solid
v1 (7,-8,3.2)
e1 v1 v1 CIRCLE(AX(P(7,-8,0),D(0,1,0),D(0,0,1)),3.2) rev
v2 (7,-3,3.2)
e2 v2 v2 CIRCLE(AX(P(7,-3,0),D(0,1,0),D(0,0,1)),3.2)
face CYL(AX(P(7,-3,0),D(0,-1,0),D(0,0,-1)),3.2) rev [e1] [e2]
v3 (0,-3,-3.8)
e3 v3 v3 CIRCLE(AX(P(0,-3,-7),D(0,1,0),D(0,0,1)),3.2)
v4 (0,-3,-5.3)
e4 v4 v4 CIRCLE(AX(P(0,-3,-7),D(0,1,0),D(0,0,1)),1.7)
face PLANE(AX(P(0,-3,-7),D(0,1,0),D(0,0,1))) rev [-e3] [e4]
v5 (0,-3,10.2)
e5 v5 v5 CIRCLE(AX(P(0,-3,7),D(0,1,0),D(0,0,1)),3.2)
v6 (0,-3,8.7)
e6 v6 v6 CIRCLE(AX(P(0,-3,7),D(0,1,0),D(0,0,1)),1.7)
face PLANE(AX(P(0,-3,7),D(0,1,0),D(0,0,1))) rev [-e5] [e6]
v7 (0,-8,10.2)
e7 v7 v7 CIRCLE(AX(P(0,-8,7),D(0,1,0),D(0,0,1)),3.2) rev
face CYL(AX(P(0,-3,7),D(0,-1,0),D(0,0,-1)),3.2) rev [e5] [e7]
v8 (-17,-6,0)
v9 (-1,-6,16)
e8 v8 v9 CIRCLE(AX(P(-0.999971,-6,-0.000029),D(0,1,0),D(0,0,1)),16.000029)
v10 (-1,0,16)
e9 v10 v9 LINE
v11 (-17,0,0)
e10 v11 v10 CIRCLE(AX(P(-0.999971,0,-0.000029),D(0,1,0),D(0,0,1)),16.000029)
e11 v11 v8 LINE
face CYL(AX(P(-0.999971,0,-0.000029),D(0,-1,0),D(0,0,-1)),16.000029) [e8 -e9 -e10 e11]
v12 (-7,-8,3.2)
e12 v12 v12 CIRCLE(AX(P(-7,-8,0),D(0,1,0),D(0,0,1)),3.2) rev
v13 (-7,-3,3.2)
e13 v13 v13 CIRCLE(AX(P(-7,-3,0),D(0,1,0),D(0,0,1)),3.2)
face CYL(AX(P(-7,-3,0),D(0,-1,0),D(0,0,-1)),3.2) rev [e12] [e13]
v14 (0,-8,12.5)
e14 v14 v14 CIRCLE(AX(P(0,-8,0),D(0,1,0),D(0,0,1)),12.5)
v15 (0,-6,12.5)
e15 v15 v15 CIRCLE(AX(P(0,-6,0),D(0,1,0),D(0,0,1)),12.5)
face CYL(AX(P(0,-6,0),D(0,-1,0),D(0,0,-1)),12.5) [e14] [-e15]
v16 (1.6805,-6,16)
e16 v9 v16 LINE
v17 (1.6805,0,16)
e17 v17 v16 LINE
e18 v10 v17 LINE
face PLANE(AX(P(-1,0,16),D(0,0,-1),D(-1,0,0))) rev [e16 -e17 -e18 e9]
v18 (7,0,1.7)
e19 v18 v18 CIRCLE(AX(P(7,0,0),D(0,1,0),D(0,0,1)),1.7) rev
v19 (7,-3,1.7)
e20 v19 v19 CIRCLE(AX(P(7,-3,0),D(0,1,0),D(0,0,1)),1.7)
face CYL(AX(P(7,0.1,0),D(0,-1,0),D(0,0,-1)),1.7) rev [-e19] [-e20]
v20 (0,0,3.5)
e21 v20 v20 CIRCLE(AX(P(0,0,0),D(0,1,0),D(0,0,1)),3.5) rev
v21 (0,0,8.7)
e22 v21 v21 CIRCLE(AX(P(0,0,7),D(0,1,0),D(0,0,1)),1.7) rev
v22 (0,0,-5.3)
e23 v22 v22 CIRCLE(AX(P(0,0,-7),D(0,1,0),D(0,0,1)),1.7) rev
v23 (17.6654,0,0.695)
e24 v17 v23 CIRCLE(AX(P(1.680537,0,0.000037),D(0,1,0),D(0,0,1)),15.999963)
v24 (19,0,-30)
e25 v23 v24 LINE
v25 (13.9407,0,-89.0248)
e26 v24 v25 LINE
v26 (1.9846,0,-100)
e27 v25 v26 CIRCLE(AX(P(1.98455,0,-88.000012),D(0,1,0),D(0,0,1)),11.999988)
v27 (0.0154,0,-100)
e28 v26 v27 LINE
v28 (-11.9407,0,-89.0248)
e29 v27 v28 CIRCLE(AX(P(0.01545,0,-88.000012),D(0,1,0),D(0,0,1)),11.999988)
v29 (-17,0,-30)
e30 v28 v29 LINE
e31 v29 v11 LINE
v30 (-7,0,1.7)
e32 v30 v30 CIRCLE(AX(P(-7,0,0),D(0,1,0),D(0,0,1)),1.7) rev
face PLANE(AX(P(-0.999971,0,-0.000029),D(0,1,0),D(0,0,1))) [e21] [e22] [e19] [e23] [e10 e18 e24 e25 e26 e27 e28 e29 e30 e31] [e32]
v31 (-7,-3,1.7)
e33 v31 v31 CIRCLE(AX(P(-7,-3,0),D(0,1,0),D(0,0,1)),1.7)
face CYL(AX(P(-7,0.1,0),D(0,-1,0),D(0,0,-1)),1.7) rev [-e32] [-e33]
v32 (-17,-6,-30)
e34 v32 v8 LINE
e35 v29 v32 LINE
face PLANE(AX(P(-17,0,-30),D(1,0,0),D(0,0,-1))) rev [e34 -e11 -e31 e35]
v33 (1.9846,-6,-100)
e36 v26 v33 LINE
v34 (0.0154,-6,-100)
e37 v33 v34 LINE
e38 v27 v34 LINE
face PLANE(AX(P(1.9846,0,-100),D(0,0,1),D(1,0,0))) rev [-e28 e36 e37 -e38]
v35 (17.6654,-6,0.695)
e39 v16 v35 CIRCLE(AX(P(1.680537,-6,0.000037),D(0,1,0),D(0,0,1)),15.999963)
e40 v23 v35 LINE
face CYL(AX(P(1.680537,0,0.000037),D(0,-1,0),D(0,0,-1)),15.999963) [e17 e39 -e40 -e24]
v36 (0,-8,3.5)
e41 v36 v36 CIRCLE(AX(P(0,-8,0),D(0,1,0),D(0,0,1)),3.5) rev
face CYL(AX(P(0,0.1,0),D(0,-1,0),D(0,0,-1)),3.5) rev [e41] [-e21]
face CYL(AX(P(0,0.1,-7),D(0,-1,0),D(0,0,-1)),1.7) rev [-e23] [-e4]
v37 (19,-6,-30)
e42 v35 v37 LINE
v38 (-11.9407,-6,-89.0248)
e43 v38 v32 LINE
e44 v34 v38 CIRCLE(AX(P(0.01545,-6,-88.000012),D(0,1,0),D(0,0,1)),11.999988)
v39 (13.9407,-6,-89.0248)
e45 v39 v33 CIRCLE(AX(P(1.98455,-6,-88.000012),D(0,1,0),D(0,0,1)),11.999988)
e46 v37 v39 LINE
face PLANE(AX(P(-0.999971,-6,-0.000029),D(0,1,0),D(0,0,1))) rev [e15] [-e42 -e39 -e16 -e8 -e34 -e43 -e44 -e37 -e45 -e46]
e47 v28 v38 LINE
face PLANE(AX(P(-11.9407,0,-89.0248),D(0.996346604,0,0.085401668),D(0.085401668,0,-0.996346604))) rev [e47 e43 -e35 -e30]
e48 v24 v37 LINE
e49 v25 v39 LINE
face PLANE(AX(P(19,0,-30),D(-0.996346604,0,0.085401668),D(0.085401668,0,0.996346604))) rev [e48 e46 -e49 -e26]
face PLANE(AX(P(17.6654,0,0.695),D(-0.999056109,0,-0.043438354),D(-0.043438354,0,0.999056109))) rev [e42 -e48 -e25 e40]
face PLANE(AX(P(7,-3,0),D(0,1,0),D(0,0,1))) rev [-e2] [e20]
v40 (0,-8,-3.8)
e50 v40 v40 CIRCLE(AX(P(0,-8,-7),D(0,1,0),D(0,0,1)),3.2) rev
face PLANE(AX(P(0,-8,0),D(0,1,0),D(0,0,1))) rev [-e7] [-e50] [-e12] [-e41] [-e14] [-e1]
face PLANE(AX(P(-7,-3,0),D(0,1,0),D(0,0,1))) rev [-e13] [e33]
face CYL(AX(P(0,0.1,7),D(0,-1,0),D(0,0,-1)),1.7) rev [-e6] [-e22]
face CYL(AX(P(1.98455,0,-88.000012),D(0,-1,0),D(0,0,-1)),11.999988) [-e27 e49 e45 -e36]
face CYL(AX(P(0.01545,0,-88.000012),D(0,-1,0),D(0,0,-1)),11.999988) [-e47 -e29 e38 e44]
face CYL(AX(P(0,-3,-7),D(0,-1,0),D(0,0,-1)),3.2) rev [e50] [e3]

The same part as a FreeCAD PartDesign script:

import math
import FreeCAD as App
import Part
import Sketcher
from FreeCAD import Vector

doc = App.newDocument("Part")
body = doc.addObject("PartDesign::Body", "Body")

# Sketch on XZ plane
sketch1 = body.newObject("Sketcher::SketchObject", "Sketch")
sketch1.AttachmentSupport = (doc.getObject("XZ_Plane"), [""])
sketch1.MapMode = "FlatFace"
sketch1.AttachmentOffset = App.Placement(Vector(0, 0, 6), App.Rotation())
sketch1.addGeometry(Part.LineSegment(Vector(-1, 16, 0), Vector(1.6805, 16, 0)), False)
sketch1.addGeometry(Part.ArcOfCircle(Part.Circle(Vector(1.680537, 0.000037, 0), Vector(0, 0, 1), 15.999963), math.radians(2.489442), math.radians(90.000132)), False)
sketch1.addGeometry(Part.LineSegment(Vector(17.6654, 0.695, 0), Vector(19, -30, 0)), False)
sketch1.addGeometry(Part.LineSegment(Vector(19, -30, 0), Vector(13.9407, -89.0248, 0)), False)
sketch1.addGeometry(Part.ArcOfCircle(Part.Circle(Vector(1.98455, -88.000012, 0), Vector(0, 0, 1), 11.999988), math.radians(-89.999762), math.radians(-4.898973)), False)
sketch1.addGeometry(Part.LineSegment(Vector(1.9846, -100, 0), Vector(0.0154, -100, 0)), False)
sketch1.addGeometry(Part.ArcOfCircle(Part.Circle(Vector(0.01545, -88.000012, 0), Vector(0, 0, 1), 11.999988), math.radians(-175.101027), math.radians(-90.000238)), False)
sketch1.addGeometry(Part.LineSegment(Vector(-11.9407, -89.0248, 0), Vector(-17, -30, 0)), False)
sketch1.addGeometry(Part.LineSegment(Vector(-17, -30, 0), Vector(-17, 0, 0)), False)
sketch1.addGeometry(Part.ArcOfCircle(Part.Circle(Vector(-0.999971, -0.000029, 0), Vector(0, 0, 1), 16.000029), math.radians(90.000104), math.radians(179.999896)), False)
sketch1.addConstraint(Sketcher.Constraint("Coincident", 0, 2, 1, 2))
sketch1.addConstraint(Sketcher.Constraint("Coincident", 1, 1, 2, 1))
sketch1.addConstraint(Sketcher.Constraint("Coincident", 2, 2, 3, 1))
sketch1.addConstraint(Sketcher.Constraint("Coincident", 3, 2, 4, 2))
sketch1.addConstraint(Sketcher.Constraint("Coincident", 4, 1, 5, 1))
sketch1.addConstraint(Sketcher.Constraint("Coincident", 5, 2, 6, 2))
sketch1.addConstraint(Sketcher.Constraint("Coincident", 6, 1, 7, 1))
sketch1.addConstraint(Sketcher.Constraint("Coincident", 7, 2, 8, 1))
sketch1.addConstraint(Sketcher.Constraint("Coincident", 8, 2, 9, 2))
sketch1.addConstraint(Sketcher.Constraint("Coincident", 9, 1, 0, 1))
sketch1.addConstraint(Sketcher.Constraint("Horizontal", 0))
sketch1.addConstraint(Sketcher.Constraint("Horizontal", 5))
sketch1.addConstraint(Sketcher.Constraint("Vertical", 8))
sketch1.addConstraint(Sketcher.Constraint("PointOnObject", 8, 2, -1))
sketch1.addConstraint(Sketcher.Constraint("DistanceY", 8, 1, 8, 2, 30.0))
sketch1.addConstraint(Sketcher.Constraint("DistanceY", -1, 1, 0, 2, 16.0))
sketch1.addConstraint(Sketcher.Constraint("DistanceX", -1, 1, 2, 2, 19.0))
sketch1.addConstraint(Sketcher.Constraint("DistanceY", 2, 2, -1, 1, 30.0))
sketch1.addConstraint(Sketcher.Constraint("DistanceY", 4, 1, -1, 1, 100.0))
sketch1.addConstraint(Sketcher.Constraint("DistanceX", 7, 2, -1, 1, 17.0))
sketch1.addConstraint(Sketcher.Constraint("DistanceX", 9, 1, -1, 1, 1.0))
sketch1.addConstraint(Sketcher.Constraint("Radius", 9, 16.000029))
sketch1.addConstraint(Sketcher.Constraint("Distance", 2, 30.724))
sketch1.addConstraint(Sketcher.Constraint("DistanceX", 0, 1, 0, 2, 2.6805))
sketch1.addConstraint(Sketcher.Constraint("DistanceX", 5, 2, 5, 1, 1.9692))
sketch1.addConstraint(Sketcher.Constraint("DistanceY", -1, 1, 1, 1, 0.695))
sketch1.addConstraint(Sketcher.Constraint("Radius", 1, 15.999963))
sketch1.addConstraint(Sketcher.Constraint("Radius", 4, 11.999988))
sketch1.addConstraint(Sketcher.Constraint("Radius", 6, 11.999988))
sketch1.addConstraint(Sketcher.Constraint("DistanceX", -1, 1, 3, 2, 13.9407))
sketch1.addConstraint(Sketcher.Constraint("DistanceY", 3, 2, -1, 1, 89.0248))
sketch1.addConstraint(Sketcher.Constraint("DistanceX", -1, 1, 4, 1, 1.9846))
sketch1.addConstraint(Sketcher.Constraint("DistanceX", 6, 1, -1, 1, 11.9407))
sketch1.addConstraint(Sketcher.Constraint("DistanceY", 6, 1, -1, 1, 89.0248))
pad1 = body.newObject("PartDesign::Pad", "Pad")
pad1.Profile = sketch1
pad1.Length = 6
pad1.Reversed = True

# Sketch on XZ plane
sketch2 = body.newObject("Sketcher::SketchObject", "Sketch001")
sketch2.AttachmentSupport = (doc.getObject("XZ_Plane"), [""])
sketch2.MapMode = "FlatFace"
sketch2.AttachmentOffset = App.Placement(Vector(0, 0, 8), App.Rotation())
sketch2.addGeometry(Part.Circle(Vector(0, 0, 0), Vector(0, 0, 1), 12), False)
sketch2.addConstraint(Sketcher.Constraint("Coincident", 0, 3, -1, 1))
sketch2.addConstraint(Sketcher.Constraint("Diameter", 0, 25.0))
pad2 = body.newObject("PartDesign::Pad", "Pad001")
pad2.Profile = sketch2
pad2.Length = 2
pad2.Reversed = True

# Sketch on XZ plane
sketch3 = body.newObject("Sketcher::SketchObject", "Sketch002")
sketch3.AttachmentSupport = (doc.getObject("XZ_Plane"), [""])
sketch3.MapMode = "FlatFace"
sketch3.AttachmentOffset = App.Placement(Vector(0, 0, 8.1), App.Rotation())
sketch3.addGeometry(Part.Circle(Vector(0, 0, 0), Vector(0, 0, 1), 3.5), False)
sketch3.addConstraint(Sketcher.Constraint("Coincident", 0, 3, -1, 1))
sketch3.addConstraint(Sketcher.Constraint("Diameter", 0, 7.0))
pocket1 = body.newObject("PartDesign::Pocket", "Pocket")
pocket1.Profile = sketch3
pocket1.Length = 8.2

# Sketch on XZ plane
sketch4 = body.newObject("Sketcher::SketchObject", "Sketch003")
sketch4.AttachmentSupport = (doc.getObject("XZ_Plane"), [""])
sketch4.MapMode = "FlatFace"
sketch4.AttachmentOffset = App.Placement(Vector(0, 0, 8.1), App.Rotation())
sketch4.addGeometry(Part.Circle(Vector(7, 0, 0), Vector(0, 0, 1), 1.7), False)
sketch4.addConstraint(Sketcher.Constraint("PointOnObject", 0, 3, -1))
sketch4.addConstraint(Sketcher.Constraint("Diameter", 0, 3.4))
sketch4.addConstraint(Sketcher.Constraint("DistanceX", -1, 1, 0, 3, 7.0))
pocket2 = body.newObject("PartDesign::Pocket", "Pocket001")
pocket2.Profile = sketch4
pocket2.Length = 8.2

# Sketch on XZ plane
sketch5 = body.newObject("Sketcher::SketchObject", "Sketch004")
sketch5.AttachmentSupport = (doc.getObject("XZ_Plane"), [""])
sketch5.MapMode = "FlatFace"
sketch5.AttachmentOffset = App.Placement(Vector(0, 0, 8.1), App.Rotation())
sketch5.addGeometry(Part.Circle(Vector(0, 7, 0), Vector(0, 0, 1), 1.7), False)
sketch5.addConstraint(Sketcher.Constraint("PointOnObject", 0, 3, -2))
sketch5.addConstraint(Sketcher.Constraint("Diameter", 0, 3.4))
sketch5.addConstraint(Sketcher.Constraint("DistanceY", -1, 1, 0, 3, 7.0))
pocket3 = body.newObject("PartDesign::Pocket", "Pocket002")
pocket3.Profile = sketch5
pocket3.Length = 8.2

# Sketch on XZ plane
sketch6 = body.newObject("Sketcher::SketchObject", "Sketch005")
sketch6.AttachmentSupport = (doc.getObject("XZ_Plane"), [""])
sketch6.MapMode = "FlatFace"
sketch6.AttachmentOffset = App.Placement(Vector(0, 0, 8.1), App.Rotation())
sketch6.addGeometry(Part.Circle(Vector(-7, 0, 0), Vector(0, 0, 1), 1.7), False)
sketch6.addConstraint(Sketcher.Constraint("PointOnObject", 0, 3, -1))
sketch6.addConstraint(Sketcher.Constraint("Diameter", 0, 3.4))
sketch6.addConstraint(Sketcher.Constraint("DistanceX", 0, 3, -1, 1, 7.0))
pocket4 = body.newObject("PartDesign::Pocket", "Pocket003")
pocket4.Profile = sketch6
pocket4.Length = 8.2

# Sketch on XZ plane
sketch7 = body.newObject("Sketcher::SketchObject", "Sketch006")
sketch7.AttachmentSupport = (doc.getObject("XZ_Plane"), [""])
sketch7.MapMode = "FlatFace"
sketch7.AttachmentOffset = App.Placement(Vector(0, 0, 8.1), App.Rotation())
sketch7.addGeometry(Part.Circle(Vector(0, -7, 0), Vector(0, 0, 1), 1.7), False)
sketch7.addConstraint(Sketcher.Constraint("PointOnObject", 0, 3, -2))
sketch7.addConstraint(Sketcher.Constraint("Diameter", 0, 3.4))
sketch7.addConstraint(Sketcher.Constraint("DistanceY", 0, 3, -1, 1, 7.0))
pocket5 = body.newObject("PartDesign::Pocket", "Pocket004")
pocket5.Profile = sketch7
pocket5.Length = 8.2

# Sketch on XZ plane
sketch8 = body.newObject("Sketcher::SketchObject", "Sketch007")
sketch8.AttachmentSupport = (doc.getObject("XZ_Plane"), [""])
sketch8.MapMode = "FlatFace"
sketch8.AttachmentOffset = App.Placement(Vector(0, 0, 8.1), App.Rotation())
sketch8.addGeometry(Part.Circle(Vector(7, 0, 0), Vector(0, 0, 1), 3.2), False)
sketch8.addConstraint(Sketcher.Constraint("PointOnObject", 0, 3, -1))
sketch8.addConstraint(Sketcher.Constraint("Diameter", 0, 6.4))
sketch8.addConstraint(Sketcher.Constraint("DistanceX", -1, 1, 0, 3, 7.0))
pocket6 = body.newObject("PartDesign::Pocket", "Pocket005")
pocket6.Profile = sketch8
pocket6.Length = 5.1

# Sketch on XZ plane
sketch9 = body.newObject("Sketcher::SketchObject", "Sketch008")
sketch9.AttachmentSupport = (doc.getObject("XZ_Plane"), [""])
sketch9.MapMode = "FlatFace"
sketch9.AttachmentOffset = App.Placement(Vector(0, 0, 8.1), App.Rotation())
sketch9.addGeometry(Part.Circle(Vector(0, 7, 0), Vector(0, 0, 1), 3.2), False)
sketch9.addConstraint(Sketcher.Constraint("PointOnObject", 0, 3, -2))
sketch9.addConstraint(Sketcher.Constraint("Diameter", 0, 6.4))
sketch9.addConstraint(Sketcher.Constraint("DistanceY", -1, 1, 0, 3, 7.0))
pocket7 = body.newObject("PartDesign::Pocket", "Pocket006")
pocket7.Profile = sketch9
pocket7.Length = 5.1

# Sketch on XZ plane
sketch10 = body.newObject("Sketcher::SketchObject", "Sketch009")
sketch10.AttachmentSupport = (doc.getObject("XZ_Plane"), [""])
sketch10.MapMode = "FlatFace"
sketch10.AttachmentOffset = App.Placement(Vector(0, 0, 8.1), App.Rotation())
sketch10.addGeometry(Part.Circle(Vector(-7, 0, 0), Vector(0, 0, 1), 3.2), False)
sketch10.addConstraint(Sketcher.Constraint("PointOnObject", 0, 3, -1))
sketch10.addConstraint(Sketcher.Constraint("Diameter", 0, 6.4))
sketch10.addConstraint(Sketcher.Constraint("DistanceX", 0, 3, -1, 1, 7.0))
pocket8 = body.newObject("PartDesign::Pocket", "Pocket007")
pocket8.Profile = sketch10
pocket8.Length = 5.1

# Sketch on XZ plane
sketch11 = body.newObject("Sketcher::SketchObject", "Sketch010")
sketch11.AttachmentSupport = (doc.getObject("XZ_Plane"), [""])
sketch11.MapMode = "FlatFace"
sketch11.AttachmentOffset = App.Placement(Vector(0, 0, 8.1), App.Rotation())
sketch11.addGeometry(Part.Circle(Vector(0, -7, 0), Vector(0, 0, 1), 3.2), False)
sketch11.addConstraint(Sketcher.Constraint("PointOnObject", 0, 3, -2))
sketch11.addConstraint(Sketcher.Constraint("Diameter", 0, 6.4))
sketch11.addConstraint(Sketcher.Constraint("DistanceY", 0, 3, -1, 1, 7.0))
pocket9 = body.newObject("PartDesign::Pocket", "Pocket008")
pocket9.Profile = sketch11
pocket9.Length = 5.1

doc.recompute()
